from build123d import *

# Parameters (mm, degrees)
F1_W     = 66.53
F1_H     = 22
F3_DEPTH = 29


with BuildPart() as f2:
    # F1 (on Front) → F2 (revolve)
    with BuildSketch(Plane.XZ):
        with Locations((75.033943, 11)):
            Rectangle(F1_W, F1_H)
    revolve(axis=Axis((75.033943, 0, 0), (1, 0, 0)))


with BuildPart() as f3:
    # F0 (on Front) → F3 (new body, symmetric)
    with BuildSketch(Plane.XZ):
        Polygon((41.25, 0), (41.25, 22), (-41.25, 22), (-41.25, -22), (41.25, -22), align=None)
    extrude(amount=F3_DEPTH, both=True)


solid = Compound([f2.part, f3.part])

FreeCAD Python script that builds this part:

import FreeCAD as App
import Part
import Sketcher
from FreeCAD import Vector
Q = App.Units.Quantity

doc = App.newDocument("Part")
body = doc.addObject("PartDesign::Body", "Body")

# Sketch on XZ plane
sketch1 = body.newObject("Sketcher::SketchObject", "Sketch")
sketch1.AttachmentSupport = (doc.getObject("XZ_Plane"), [""])
sketch1.MapMode = "FlatFace"
sketch1.addGeometry(Part.LineSegment(Vector(42, 22, 0), Vector(42, 0, 0)), False)
sketch1.addGeometry(Part.LineSegment(Vector(42, 0, 0), Vector(108, 0, 0)), False)
sketch1.addGeometry(Part.LineSegment(Vector(108, 0, 0), Vector(108, 22, 0)), False)
sketch1.addGeometry(Part.LineSegment(Vector(108, 22, 0), Vector(42, 22, 0)), False)
sketch1.addConstraint(Sketcher.Constraint("Coincident", 0, 2, 1, 1))
sketch1.addConstraint(Sketcher.Constraint("Coincident", 1, 2, 2, 1))
sketch1.addConstraint(Sketcher.Constraint("Coincident", 2, 2, 3, 1))
sketch1.addConstraint(Sketcher.Constraint("Coincident", 3, 2, 0, 1))
sketch1.addConstraint(Sketcher.Constraint("Vertical", 0))
sketch1.addConstraint(Sketcher.Constraint("Horizontal", 1))
sketch1.addConstraint(Sketcher.Constraint("Vertical", 2))
sketch1.addConstraint(Sketcher.Constraint("Horizontal", 3))
sketch1.addConstraint(Sketcher.Constraint("PointOnObject", 0, 2, -1))
sketch1.addConstraint(Sketcher.Constraint("DistanceY", 0, 2, 0, 1, Q("22 mm")))
sketch1.addConstraint(Sketcher.Constraint("DistanceX", 1, 1, 1, 2, Q("66.53 mm")))
sketch1.addConstraint(Sketcher.Constraint("DistanceX", -1, 1, 0, 2, Q("41.768943 mm")))
revolution = body.newObject("PartDesign::Revolution", "Revolution")
revolution.Profile = sketch1
revolution.ReferenceAxis = (sketch1, ["H_Axis"])
revolution.Angle = 360
body2 = doc.addObject("PartDesign::Body", "Body001")

# Sketch on XZ plane
sketch2 = body2.newObject("Sketcher::SketchObject", "Sketch001")
sketch2.AttachmentSupport = (doc.getObject("XZ_Plane001"), [""])
sketch2.MapMode = "FlatFace"
sketch2.addGeometry(Part.LineSegment(Vector(41, 22, 0), Vector(-41, 22, 0)), False)
sketch2.addGeometry(Part.LineSegment(Vector(-41, 22, 0), Vector(-41, -22, 0)), False)
sketch2.addGeometry(Part.LineSegment(Vector(-41, -22, 0), Vector(41, -22, 0)), False)
sketch2.addGeometry(Part.LineSegment(Vector(41, -22, 0), Vector(41, 22, 0)), False)
sketch2.addConstraint(Sketcher.Constraint("Coincident", 0, 2, 1, 1))
sketch2.addConstraint(Sketcher.Constraint("Coincident", 1, 2, 2, 1))
sketch2.addConstraint(Sketcher.Constraint("Coincident", 2, 2, 3, 1))
sketch2.addConstraint(Sketcher.Constraint("Coincident", 3, 2, 0, 1))
sketch2.addConstraint(Sketcher.Constraint("Horizontal", 0))
sketch2.addConstraint(Sketcher.Constraint("Vertical", 1))
sketch2.addConstraint(Sketcher.Constraint("Horizontal", 2))
sketch2.addConstraint(Sketcher.Constraint("Vertical", 3))
sketch2.addConstraint(Sketcher.Constraint("Symmetric", 0, 2, 2, 2, -1, 1))
sketch2.addConstraint(Sketcher.Constraint("DistanceY", 1, 2, 1, 1, Q("44 mm")))
sketch2.addConstraint(Sketcher.Constraint("DistanceX", 0, 2, 0, 1, Q("82.5 mm")))
pad1 = body2.newObject("PartDesign::Pad", "Pad")
pad1.Profile = sketch2
pad1.Length = 58
pad1.Midplane = True

doc.recompute()
